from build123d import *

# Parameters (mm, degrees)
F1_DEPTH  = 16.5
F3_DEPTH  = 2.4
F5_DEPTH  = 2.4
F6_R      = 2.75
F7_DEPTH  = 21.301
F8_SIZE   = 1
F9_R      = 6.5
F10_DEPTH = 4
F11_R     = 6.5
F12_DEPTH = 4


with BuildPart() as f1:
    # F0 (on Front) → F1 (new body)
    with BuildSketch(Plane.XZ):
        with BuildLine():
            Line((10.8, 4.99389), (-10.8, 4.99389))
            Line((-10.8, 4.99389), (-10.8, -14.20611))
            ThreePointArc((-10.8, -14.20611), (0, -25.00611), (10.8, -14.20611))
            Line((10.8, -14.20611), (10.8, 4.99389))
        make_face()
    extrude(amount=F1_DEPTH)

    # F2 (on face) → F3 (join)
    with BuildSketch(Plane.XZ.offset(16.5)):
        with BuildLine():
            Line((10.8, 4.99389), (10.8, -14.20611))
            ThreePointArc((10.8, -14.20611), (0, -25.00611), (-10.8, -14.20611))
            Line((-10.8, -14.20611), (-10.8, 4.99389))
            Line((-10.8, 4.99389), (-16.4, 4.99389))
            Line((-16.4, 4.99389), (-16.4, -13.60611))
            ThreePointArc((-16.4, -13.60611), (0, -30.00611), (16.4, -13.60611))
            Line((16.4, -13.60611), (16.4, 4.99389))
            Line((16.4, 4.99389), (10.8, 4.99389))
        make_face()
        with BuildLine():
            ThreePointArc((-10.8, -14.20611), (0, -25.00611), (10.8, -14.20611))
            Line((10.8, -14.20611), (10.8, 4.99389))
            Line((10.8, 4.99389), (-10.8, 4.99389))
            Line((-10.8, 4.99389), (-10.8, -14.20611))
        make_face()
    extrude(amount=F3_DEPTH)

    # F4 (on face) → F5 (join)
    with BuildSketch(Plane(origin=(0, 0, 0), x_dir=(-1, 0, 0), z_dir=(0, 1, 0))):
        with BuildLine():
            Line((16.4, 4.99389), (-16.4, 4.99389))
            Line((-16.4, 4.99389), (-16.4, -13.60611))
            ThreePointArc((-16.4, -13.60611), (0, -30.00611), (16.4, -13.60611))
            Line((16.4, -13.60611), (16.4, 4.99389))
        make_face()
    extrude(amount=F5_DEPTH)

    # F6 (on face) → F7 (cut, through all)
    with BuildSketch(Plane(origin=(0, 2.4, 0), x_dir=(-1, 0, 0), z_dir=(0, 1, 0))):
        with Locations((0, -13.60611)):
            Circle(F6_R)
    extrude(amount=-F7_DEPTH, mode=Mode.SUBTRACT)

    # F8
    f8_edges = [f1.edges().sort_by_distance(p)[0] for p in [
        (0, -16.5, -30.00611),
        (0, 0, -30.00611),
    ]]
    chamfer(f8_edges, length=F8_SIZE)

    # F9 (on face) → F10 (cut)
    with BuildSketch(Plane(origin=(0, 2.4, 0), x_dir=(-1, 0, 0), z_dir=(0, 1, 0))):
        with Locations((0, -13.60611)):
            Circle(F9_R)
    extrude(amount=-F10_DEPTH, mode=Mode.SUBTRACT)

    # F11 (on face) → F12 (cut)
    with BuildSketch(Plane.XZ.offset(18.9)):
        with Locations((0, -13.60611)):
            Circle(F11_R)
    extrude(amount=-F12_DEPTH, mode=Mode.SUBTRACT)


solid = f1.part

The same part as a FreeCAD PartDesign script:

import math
import FreeCAD as App
import Part
import Sketcher
Q = App.Units.Quantity


def edges_at(feature, points):
    """Names of the edges that pass closest to the given points."""
    edges = feature.Shape.Edges
    near = lambda p: min(range(len(edges)), key=lambda i: edges[i].distToShape(Part.Vertex(*p))[0])
    return sorted({f"Edge{near(p) + 1}" for p in points})

doc = App.newDocument("Part")
body = doc.addObject("PartDesign::Body", "Body")

# Sketch on XZ plane
sketch1 = body.newObject("Sketcher::SketchObject", "Sketch")
sketch1.AttachmentSupport = (doc.getObject("XZ_Plane"), [""])
sketch1.MapMode = "FlatFace"
sketch1.addGeometry([
    Part.LineSegment(App.Vector(11, 5, 0), App.Vector(-11, 5, 0)),
    Part.LineSegment(App.Vector(-11, 5, 0), App.Vector(-11, -14, 0)),
    Part.ArcOfCircle(Part.Circle(App.Vector(0, -14, 0), App.Vector(0, 0, 1), 11), math.radians(180), math.radians(360)),
    Part.LineSegment(App.Vector(11, -14, 0), App.Vector(11, 5, 0)),
], False)
sketch1.addConstraint([
    Sketcher.Constraint("Coincident", 0, 2, 1, 1),
    Sketcher.Constraint("Tangent", 1, 2, 2, 1),
    Sketcher.Constraint("Tangent", 2, 2, 3, 1),
    Sketcher.Constraint("Coincident", 3, 2, 0, 1),
    Sketcher.Constraint("Horizontal", 0),
    Sketcher.Constraint("Vertical", 1),
    Sketcher.Constraint("Vertical", 3),
    Sketcher.Constraint("PointOnObject", 2, 3, -2),
    Sketcher.Constraint("Radius", 2, Q("10.8 mm")),
    Sketcher.Constraint("DistanceY", 1, 2, 1, 1, Q("19.2 mm")),
    Sketcher.Constraint("DistanceY", 2, 3, -1, 1, Q("14.20611 mm")),
])
pad1 = body.newObject("PartDesign::Pad", "Pad")
pad1.Profile = sketch1
pad1.Length = 16.5

# Sketch on XZ plane
sketch2 = body.newObject("Sketcher::SketchObject", "Sketch001")
sketch2.AttachmentSupport = (doc.getObject("XZ_Plane"), [""])
sketch2.MapMode = "FlatFace"
sketch2.AttachmentOffset = App.Placement(App.Vector(0, 0, 16.5), App.Rotation())
sketch2.addGeometry([
    Part.LineSegment(App.Vector(-16, 5, 0), App.Vector(-16, -14, 0)),
    Part.ArcOfCircle(Part.Circle(App.Vector(0, -14, 0), App.Vector(0, 0, 1), 16), math.radians(180), math.radians(360)),
    Part.LineSegment(App.Vector(16, -14, 0), App.Vector(16, 5, 0)),
    Part.LineSegment(App.Vector(16, 5, 0), App.Vector(-16, 5, 0)),
], False)
sketch2.addConstraint([
    Sketcher.Constraint("Tangent", 0, 2, 1, 1),
    Sketcher.Constraint("Tangent", 1, 2, 2, 1),
    Sketcher.Constraint("Coincident", 2, 2, 3, 1),
    Sketcher.Constraint("Coincident", 3, 2, 0, 1),
    Sketcher.Constraint("Vertical", 0),
    Sketcher.Constraint("Vertical", 2),
    Sketcher.Constraint("Horizontal", 3),
    Sketcher.Constraint("PointOnObject", 1, 3, -2),
    Sketcher.Constraint("Radius", 1, Q("16.4 mm")),
    Sketcher.Constraint("DistanceY", 0, 2, 0, 1, Q("18.6 mm")),
    Sketcher.Constraint("DistanceY", 1, 3, -1, 1, Q("13.60611 mm")),
])
pad2 = body.newObject("PartDesign::Pad", "Pad001")
pad2.Profile = sketch2
pad2.Length = 2.4

# Sketch on XZ plane
sketch3 = body.newObject("Sketcher::SketchObject", "Sketch002")
sketch3.AttachmentSupport = (doc.getObject("XZ_Plane"), [""])
sketch3.MapMode = "FlatFace"
sketch3.addGeometry([
    Part.LineSegment(App.Vector(-16, 5, 0), App.Vector(16, 5, 0)),
    Part.LineSegment(App.Vector(16, 5, 0), App.Vector(16, -14, 0)),
    Part.ArcOfCircle(Part.Circle(App.Vector(0, -14, 0), App.Vector(0, 0, 1), 16), math.radians(180), math.radians(360)),
    Part.LineSegment(App.Vector(-16, -14, 0), App.Vector(-16, 5, 0)),
], False)
sketch3.addConstraint([
    Sketcher.Constraint("Coincident", 0, 2, 1, 1),
    Sketcher.Constraint("Tangent", 1, 2, 2, 2),
    Sketcher.Constraint("Tangent", 2, 1, 3, 1),
    Sketcher.Constraint("Coincident", 3, 2, 0, 1),
    Sketcher.Constraint("Horizontal", 0),
    Sketcher.Constraint("Vertical", 1),
    Sketcher.Constraint("Vertical", 3),
    Sketcher.Constraint("PointOnObject", 2, 3, -2),
    Sketcher.Constraint("Radius", 2, Q("16.4 mm")),
    Sketcher.Constraint("DistanceY", 1, 2, 1, 1, Q("18.6 mm")),
    Sketcher.Constraint("DistanceY", 2, 3, -1, 1, Q("13.60611 mm")),
])
pad3 = body.newObject("PartDesign::Pad", "Pad002")
pad3.Profile = sketch3
pad3.Length = 2.4
pad3.Reversed = True

# Sketch on XZ plane
sketch4 = body.newObject("Sketcher::SketchObject", "Sketch003")
sketch4.AttachmentSupport = (doc.getObject("XZ_Plane"), [""])
sketch4.MapMode = "FlatFace"
sketch4.AttachmentOffset = App.Placement(App.Vector(0, 0, -2.4), App.Rotation())
sketch4.addGeometry(Part.Circle(App.Vector(0, -13.6, 0), App.Vector(0, 0, 1), 2.8), False)
sketch4.addConstraint([
    Sketcher.Constraint("PointOnObject", 0, 3, -2),
    Sketcher.Constraint("Diameter", 0, Q("5.5 mm")),
    Sketcher.Constraint("DistanceY", 0, 3, -1, 1, Q("13.60611 mm")),
])
pocket1 = body.newObject("PartDesign::Pocket", "Pocket")
pocket1.Profile = sketch4
pocket1.Type = "ThroughAll"
pocket1.Reversed = True
doc.recompute()

chamfer = body.newObject("PartDesign::Chamfer", "Chamfer")
chamfer.Base = (pocket1, edges_at(pocket1, [(0, -16.5, -30.006), (0, 0, -30.006)]))
chamfer.Size = 1

# Sketch on XZ plane
sketch5 = body.newObject("Sketcher::SketchObject", "Sketch004")
sketch5.AttachmentSupport = (doc.getObject("XZ_Plane"), [""])
sketch5.MapMode = "FlatFace"
sketch5.AttachmentOffset = App.Placement(App.Vector(0, 0, -2.4), App.Rotation())
sketch5.addGeometry(Part.Circle(App.Vector(0, -14, 0), App.Vector(0, 0, 1), 6), False)
sketch5.addConstraint([
    Sketcher.Constraint("PointOnObject", 0, 3, -2),
    Sketcher.Constraint("Diameter", 0, Q("13 mm")),
    Sketcher.Constraint("DistanceY", 0, 3, -1, 1, Q("13.60611 mm")),
])
pocket2 = body.newObject("PartDesign::Pocket", "Pocket001")
pocket2.Profile = sketch5
pocket2.Length = 4
pocket2.Reversed = True

# Sketch on XZ plane
sketch6 = body.newObject("Sketcher::SketchObject", "Sketch005")
sketch6.AttachmentSupport = (doc.getObject("XZ_Plane"), [""])
sketch6.MapMode = "FlatFace"
sketch6.AttachmentOffset = App.Placement(App.Vector(0, 0, 18.9), App.Rotation())
sketch6.addGeometry(Part.Circle(App.Vector(0, -14, 0), App.Vector(0, 0, 1), 6), False)
sketch6.addConstraint([
    Sketcher.Constraint("PointOnObject", 0, 3, -2),
    Sketcher.Constraint("Diameter", 0, Q("13 mm")),
    Sketcher.Constraint("DistanceY", 0, 3, -1, 1, Q("13.60611 mm")),
])
pocket3 = body.newObject("PartDesign::Pocket", "Pocket002")
pocket3.Profile = sketch6
pocket3.Length = 4

doc.recompute()
